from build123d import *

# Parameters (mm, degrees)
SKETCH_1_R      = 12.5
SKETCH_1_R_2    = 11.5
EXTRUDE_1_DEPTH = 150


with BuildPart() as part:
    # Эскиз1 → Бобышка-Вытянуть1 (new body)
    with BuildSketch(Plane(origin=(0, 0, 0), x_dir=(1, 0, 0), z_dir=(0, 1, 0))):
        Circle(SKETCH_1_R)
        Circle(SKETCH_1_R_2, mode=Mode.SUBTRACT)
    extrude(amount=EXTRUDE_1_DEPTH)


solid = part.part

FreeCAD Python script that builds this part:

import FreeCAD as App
import Part
import Sketcher

V = App.Vector
Q = App.Units.Quantity

doc = App.newDocument("Part")
body = doc.addObject("PartDesign::Body", "Body")

sketch1 = body.newObject("Sketcher::SketchObject", "Sketch")
sketch1.AttachmentSupport = (doc.getObject("XZ_Plane"), [""])
sketch1.MapMode = "FlatFace"
sketch1.addGeometry(Part.Circle(V(0, 0, 0), V(0, 0, 1), 12), False)
sketch1.addGeometry(Part.Circle(V(0, 0, 0), V(0, 0, 1), 12), False)
sketch1.addConstraint(Sketcher.Constraint("Coincident", 0, 3, -1, 1))
sketch1.addConstraint(Sketcher.Constraint("Coincident", 1, 3, -1, 1))
sketch1.addConstraint(Sketcher.Constraint("Diameter", 0, Q("25 mm")))
sketch1.addConstraint(Sketcher.Constraint("Diameter", 1, Q("23 mm")))
pad1 = body.newObject("PartDesign::Pad", "Pad")
pad1.Profile = sketch1
pad1.Length = 150
pad1.Reversed = True

doc.recompute()
